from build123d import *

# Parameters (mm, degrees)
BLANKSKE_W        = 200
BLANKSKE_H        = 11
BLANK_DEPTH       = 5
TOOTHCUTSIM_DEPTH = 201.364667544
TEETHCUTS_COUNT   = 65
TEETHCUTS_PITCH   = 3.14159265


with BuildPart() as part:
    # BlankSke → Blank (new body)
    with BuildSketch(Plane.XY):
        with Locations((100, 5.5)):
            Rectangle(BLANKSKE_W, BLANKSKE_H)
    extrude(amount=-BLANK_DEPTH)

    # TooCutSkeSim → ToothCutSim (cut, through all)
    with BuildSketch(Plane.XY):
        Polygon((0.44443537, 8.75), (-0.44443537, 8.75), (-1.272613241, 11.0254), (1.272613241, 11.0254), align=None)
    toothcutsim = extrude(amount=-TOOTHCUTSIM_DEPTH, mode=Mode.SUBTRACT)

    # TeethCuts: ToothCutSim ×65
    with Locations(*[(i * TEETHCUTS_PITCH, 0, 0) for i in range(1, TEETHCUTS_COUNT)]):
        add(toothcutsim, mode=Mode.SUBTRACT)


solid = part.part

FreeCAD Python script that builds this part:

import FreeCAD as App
import Part
import Sketcher

V = App.Vector
Q = App.Units.Quantity

doc = App.newDocument("Part")
body = doc.addObject("PartDesign::Body", "Body")

sketch1 = doc.addObject("Sketcher::SketchObject", "Sketch")
body.addObject(sketch1)
sketch1.AttachmentSupport = (doc.XY_Plane, [""])
sketch1.MapMode = "FlatFace"
sketch1.addGeometry(Part.LineSegment(V(0, 11, 0), V(0, 0, 0)), False)
sketch1.addGeometry(Part.LineSegment(V(0, 0, 0), V(200, 0, 0)), False)
sketch1.addGeometry(Part.LineSegment(V(200, 0, 0), V(200, 11, 0)), False)
sketch1.addGeometry(Part.LineSegment(V(200, 11, 0), V(0, 11, 0)), False)
sketch1.addConstraint(Sketcher.Constraint("Coincident", 0, 2, 1, 1))
sketch1.addConstraint(Sketcher.Constraint("Coincident", 1, 2, 2, 1))
sketch1.addConstraint(Sketcher.Constraint("Coincident", 2, 2, 3, 1))
sketch1.addConstraint(Sketcher.Constraint("Coincident", 3, 2, 0, 1))
sketch1.addConstraint(Sketcher.Constraint("Vertical", 0))
sketch1.addConstraint(Sketcher.Constraint("Horizontal", 1))
sketch1.addConstraint(Sketcher.Constraint("Vertical", 2))
sketch1.addConstraint(Sketcher.Constraint("Horizontal", 3))
sketch1.addConstraint(Sketcher.Constraint("Coincident", 0, 2, -1, 1))
sketch1.addConstraint(Sketcher.Constraint("DistanceX", 1, 1, 1, 2, 200.0))
sketch1.addConstraint(Sketcher.Constraint("DistanceY", 0, 2, 0, 1, 11.0))
pad1 = doc.addObject("PartDesign::Pad", "Pad")
body.addObject(pad1)
pad1.Profile = sketch1
pad1.Length = 5
pad1.Reversed = True

sketch2 = doc.addObject("Sketcher::SketchObject", "Sketch001")
body.addObject(sketch2)
sketch2.AttachmentSupport = (doc.XY_Plane, [""])
sketch2.MapMode = "FlatFace"
sketch2.addGeometry(Part.LineSegment(V(-0.4, 8.8, 0), V(0.4, 8.8, 0)), False)
sketch2.addGeometry(Part.LineSegment(V(0.4, 8.8, 0), V(1.3, 11, 0)), False)
sketch2.addGeometry(Part.LineSegment(V(1.3, 11, 0), V(-1.3, 11, 0)), False)
sketch2.addGeometry(Part.LineSegment(V(-1.3, 11, 0), V(-0.4, 8.8, 0)), False)
sketch2.addConstraint(Sketcher.Constraint("Coincident", 0, 2, 1, 1))
sketch2.addConstraint(Sketcher.Constraint("Coincident", 1, 2, 2, 1))
sketch2.addConstraint(Sketcher.Constraint("Coincident", 2, 2, 3, 1))
sketch2.addConstraint(Sketcher.Constraint("Coincident", 3, 2, 0, 1))
sketch2.addConstraint(Sketcher.Constraint("Horizontal", 0))
sketch2.addConstraint(Sketcher.Constraint("Horizontal", 2))
sketch2.addConstraint(Sketcher.Constraint("Equal", 1, 3))
sketch2.addConstraint(Sketcher.Constraint("Angle", 1, Q("70 deg")))
sketch2.addConstraint(Sketcher.Constraint("DistanceY", -1, 1, 0, 2, 8.75))
sketch2.addConstraint(Sketcher.Constraint("DistanceX", 0, 1, 0, 2, 0.888871))
sketch2.addConstraint(Sketcher.Constraint("DistanceY", -1, 1, 1, 2, 11.0254))
sketch2.addConstraint(Sketcher.Constraint("DistanceX", -1, 1, 0, 2, 0.444435))
pocket1 = doc.addObject("PartDesign::Pocket", "Pocket")
body.addObject(pocket1)
pocket1.Profile = sketch2
pocket1.Type = "ThroughAll"
doc.recompute()

linearpattern = doc.addObject("PartDesign::LinearPattern", "LinearPattern")
body.addObject(linearpattern)
linearpattern.Originals = [pocket1]
linearpattern.Direction = (doc.X_Axis, [""])
linearpattern.Mode = "offset"
linearpattern.Offset = 3.141593
linearpattern.Occurrences = 65
body.Tip = linearpattern

doc.recompute()
